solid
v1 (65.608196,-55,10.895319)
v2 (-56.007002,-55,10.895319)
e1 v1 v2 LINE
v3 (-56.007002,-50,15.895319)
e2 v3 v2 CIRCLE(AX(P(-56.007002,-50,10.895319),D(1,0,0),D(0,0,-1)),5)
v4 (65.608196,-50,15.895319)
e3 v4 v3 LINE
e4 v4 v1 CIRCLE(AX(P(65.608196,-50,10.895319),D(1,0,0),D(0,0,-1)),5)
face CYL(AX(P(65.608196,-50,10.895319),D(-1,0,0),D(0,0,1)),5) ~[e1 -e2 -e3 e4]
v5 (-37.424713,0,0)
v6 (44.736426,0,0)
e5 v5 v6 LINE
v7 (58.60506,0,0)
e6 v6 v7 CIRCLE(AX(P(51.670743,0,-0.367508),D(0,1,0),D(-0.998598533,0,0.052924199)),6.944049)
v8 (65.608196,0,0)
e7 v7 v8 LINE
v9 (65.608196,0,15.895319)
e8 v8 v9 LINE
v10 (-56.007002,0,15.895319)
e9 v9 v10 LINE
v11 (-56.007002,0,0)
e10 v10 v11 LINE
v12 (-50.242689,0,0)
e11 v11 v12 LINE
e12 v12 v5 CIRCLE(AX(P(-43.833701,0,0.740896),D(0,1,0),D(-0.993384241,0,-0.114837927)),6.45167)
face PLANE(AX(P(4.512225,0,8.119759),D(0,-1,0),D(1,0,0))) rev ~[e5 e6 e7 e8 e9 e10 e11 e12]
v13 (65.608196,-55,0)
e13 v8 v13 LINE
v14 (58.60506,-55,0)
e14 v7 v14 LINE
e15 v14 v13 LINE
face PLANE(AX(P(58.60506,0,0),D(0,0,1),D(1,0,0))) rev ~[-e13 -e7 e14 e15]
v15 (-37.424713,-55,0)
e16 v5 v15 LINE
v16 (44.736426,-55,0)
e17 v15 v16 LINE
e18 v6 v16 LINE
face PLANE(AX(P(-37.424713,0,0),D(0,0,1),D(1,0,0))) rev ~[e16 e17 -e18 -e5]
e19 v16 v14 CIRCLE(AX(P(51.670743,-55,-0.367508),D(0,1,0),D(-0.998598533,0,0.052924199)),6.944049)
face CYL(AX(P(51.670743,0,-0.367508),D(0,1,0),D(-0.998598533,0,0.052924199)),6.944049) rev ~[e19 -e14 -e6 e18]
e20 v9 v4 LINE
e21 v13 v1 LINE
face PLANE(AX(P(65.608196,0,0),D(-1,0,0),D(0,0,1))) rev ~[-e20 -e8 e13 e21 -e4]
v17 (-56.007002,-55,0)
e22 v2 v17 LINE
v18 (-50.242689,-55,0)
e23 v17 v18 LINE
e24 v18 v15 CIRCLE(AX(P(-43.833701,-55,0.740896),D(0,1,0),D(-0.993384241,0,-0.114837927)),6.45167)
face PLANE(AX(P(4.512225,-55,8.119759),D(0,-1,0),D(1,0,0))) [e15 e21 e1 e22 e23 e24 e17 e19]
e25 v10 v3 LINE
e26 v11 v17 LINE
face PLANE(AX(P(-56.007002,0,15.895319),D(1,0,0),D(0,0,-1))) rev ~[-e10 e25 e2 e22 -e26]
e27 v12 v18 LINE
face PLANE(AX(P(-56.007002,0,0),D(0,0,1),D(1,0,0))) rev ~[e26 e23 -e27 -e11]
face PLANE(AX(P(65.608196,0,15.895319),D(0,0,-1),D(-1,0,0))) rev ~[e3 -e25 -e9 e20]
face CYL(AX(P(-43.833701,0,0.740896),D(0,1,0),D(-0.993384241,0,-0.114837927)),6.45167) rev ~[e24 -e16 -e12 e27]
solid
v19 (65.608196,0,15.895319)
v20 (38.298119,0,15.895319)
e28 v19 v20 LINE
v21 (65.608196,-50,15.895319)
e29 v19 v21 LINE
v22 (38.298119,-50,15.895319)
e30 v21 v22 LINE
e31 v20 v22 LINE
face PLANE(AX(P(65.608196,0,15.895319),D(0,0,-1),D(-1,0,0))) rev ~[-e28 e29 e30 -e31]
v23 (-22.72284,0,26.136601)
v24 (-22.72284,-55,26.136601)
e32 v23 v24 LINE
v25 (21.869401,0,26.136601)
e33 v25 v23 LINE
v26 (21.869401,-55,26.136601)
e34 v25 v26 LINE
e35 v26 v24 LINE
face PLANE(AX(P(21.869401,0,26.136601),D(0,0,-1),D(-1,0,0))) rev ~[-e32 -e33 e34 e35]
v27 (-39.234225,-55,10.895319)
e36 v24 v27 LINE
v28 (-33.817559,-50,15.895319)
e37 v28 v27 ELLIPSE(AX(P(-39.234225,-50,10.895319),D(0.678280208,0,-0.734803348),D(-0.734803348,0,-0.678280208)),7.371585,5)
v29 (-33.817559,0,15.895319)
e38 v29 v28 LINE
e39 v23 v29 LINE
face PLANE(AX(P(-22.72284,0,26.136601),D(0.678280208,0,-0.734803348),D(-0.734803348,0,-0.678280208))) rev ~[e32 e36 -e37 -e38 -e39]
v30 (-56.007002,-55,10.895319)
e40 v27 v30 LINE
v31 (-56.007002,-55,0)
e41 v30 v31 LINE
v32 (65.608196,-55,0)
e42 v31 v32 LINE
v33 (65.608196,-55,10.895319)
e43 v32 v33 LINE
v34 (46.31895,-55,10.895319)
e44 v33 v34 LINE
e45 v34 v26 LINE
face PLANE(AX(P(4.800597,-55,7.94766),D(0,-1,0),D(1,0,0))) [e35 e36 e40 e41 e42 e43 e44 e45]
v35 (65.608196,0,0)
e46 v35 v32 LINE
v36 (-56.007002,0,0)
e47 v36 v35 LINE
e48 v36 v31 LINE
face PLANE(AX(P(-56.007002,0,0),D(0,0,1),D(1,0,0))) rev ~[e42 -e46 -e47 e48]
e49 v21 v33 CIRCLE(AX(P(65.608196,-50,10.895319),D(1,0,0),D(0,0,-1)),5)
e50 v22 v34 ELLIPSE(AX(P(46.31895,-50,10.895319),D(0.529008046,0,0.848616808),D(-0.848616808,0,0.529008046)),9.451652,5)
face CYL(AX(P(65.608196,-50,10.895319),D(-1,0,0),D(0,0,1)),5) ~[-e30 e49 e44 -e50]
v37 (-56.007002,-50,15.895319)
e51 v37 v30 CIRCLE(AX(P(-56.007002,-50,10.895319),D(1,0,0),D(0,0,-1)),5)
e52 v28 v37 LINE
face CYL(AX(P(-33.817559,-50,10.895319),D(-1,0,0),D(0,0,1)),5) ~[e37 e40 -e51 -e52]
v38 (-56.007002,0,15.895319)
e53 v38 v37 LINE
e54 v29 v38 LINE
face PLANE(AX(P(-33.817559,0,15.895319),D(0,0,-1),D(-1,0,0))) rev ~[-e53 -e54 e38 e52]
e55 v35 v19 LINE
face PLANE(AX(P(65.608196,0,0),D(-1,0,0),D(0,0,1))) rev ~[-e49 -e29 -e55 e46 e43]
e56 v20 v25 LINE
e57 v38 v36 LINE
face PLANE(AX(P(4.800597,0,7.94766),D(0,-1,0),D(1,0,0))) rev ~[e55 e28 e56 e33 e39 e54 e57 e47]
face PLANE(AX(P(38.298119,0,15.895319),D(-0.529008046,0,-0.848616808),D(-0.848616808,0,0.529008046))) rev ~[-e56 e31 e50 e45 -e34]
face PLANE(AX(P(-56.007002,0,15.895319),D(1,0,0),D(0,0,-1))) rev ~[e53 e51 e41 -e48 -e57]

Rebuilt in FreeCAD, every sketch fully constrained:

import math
import FreeCAD as App
import Part
import Sketcher


def edges_at(feature, points):
    """Names of the edges that pass closest to the given points."""
    edges = feature.Shape.Edges
    near = lambda p: min(range(len(edges)), key=lambda i: edges[i].distToShape(Part.Vertex(*p))[0])
    return sorted({f"Edge{near(p) + 1}" for p in points})

doc = App.newDocument("Part")
body = doc.addObject("PartDesign::Body", "Body")

# Sketch on XZ plane
sketch1 = body.newObject("Sketcher::SketchObject", "Sketch")
sketch1.AttachmentSupport = (doc.getObject("XZ_Plane"), [""])
sketch1.MapMode = "FlatFace"
sketch1.addGeometry(Part.ArcOfCircle(Part.Circle(App.Vector(51.670743, -0.367508, 0), App.Vector(0, 0, 1), 6.944049), math.radians(3.033751), math.radians(176.966249)), False)
sketch1.addGeometry(Part.LineSegment(App.Vector(58.60506, 0, 0), App.Vector(65.608196, 0, 0)), False)
sketch1.addGeometry(Part.LineSegment(App.Vector(65.608196, 0, 0), App.Vector(65.608196, 15.895319, 0)), False)
sketch1.addGeometry(Part.LineSegment(App.Vector(65.608196, 15.895319, 0), App.Vector(-56.007002, 15.895319, 0)), False)
sketch1.addGeometry(Part.LineSegment(App.Vector(-56.007002, 15.895319, 0), App.Vector(-56.007002, 0, 0)), False)
sketch1.addGeometry(Part.LineSegment(App.Vector(-56.007002, 0, 0), App.Vector(-50.242689, 0, 0)), False)
sketch1.addGeometry(Part.ArcOfCircle(Part.Circle(App.Vector(-43.833701, 0.740896, 0), App.Vector(0, 0, 1), 6.45167), math.radians(-6.594277), math.radians(186.594277)), False)
sketch1.addGeometry(Part.LineSegment(App.Vector(-37.424713, 0, 0), App.Vector(44.736426, 0, 0)), False)
sketch1.addConstraint(Sketcher.Constraint("Coincident", 0, 1, 1, 1))
sketch1.addConstraint(Sketcher.Constraint("Coincident", 1, 2, 2, 1))
sketch1.addConstraint(Sketcher.Constraint("Coincident", 2, 2, 3, 1))
sketch1.addConstraint(Sketcher.Constraint("Coincident", 3, 2, 4, 1))
sketch1.addConstraint(Sketcher.Constraint("Coincident", 4, 2, 5, 1))
sketch1.addConstraint(Sketcher.Constraint("Coincident", 5, 2, 6, 2))
sketch1.addConstraint(Sketcher.Constraint("Coincident", 6, 1, 7, 1))
sketch1.addConstraint(Sketcher.Constraint("Coincident", 7, 2, 0, 2))
sketch1.addConstraint(Sketcher.Constraint("Horizontal", 1))
sketch1.addConstraint(Sketcher.Constraint("Vertical", 2))
sketch1.addConstraint(Sketcher.Constraint("Horizontal", 3))
sketch1.addConstraint(Sketcher.Constraint("Vertical", 4))
sketch1.addConstraint(Sketcher.Constraint("Horizontal", 5))
sketch1.addConstraint(Sketcher.Constraint("Horizontal", 7))
sketch1.addConstraint(Sketcher.Constraint("PointOnObject", 0, 1, -1))
sketch1.addConstraint(Sketcher.Constraint("PointOnObject", 4, 2, -1))
sketch1.addConstraint(Sketcher.Constraint("PointOnObject", 6, 1, -1))
sketch1.addConstraint(Sketcher.Constraint("Radius", 0, 6.944049))
sketch1.addConstraint(Sketcher.Constraint("Radius", 6, 6.45167))
sketch1.addConstraint(Sketcher.Constraint("DistanceX", 3, 2, -1, 1, 56.007002))
sketch1.addConstraint(Sketcher.Constraint("DistanceX", 7, 1, 7, 2, 82.16114))
sketch1.addConstraint(Sketcher.Constraint("DistanceY", 2, 1, 2, 2, 15.895319))
sketch1.addConstraint(Sketcher.Constraint("DistanceX", 6, 3, -1, 1, 43.833701))
sketch1.addConstraint(Sketcher.Constraint("DistanceX", 1, 1, 1, 2, 7.003136))
sketch1.addConstraint(Sketcher.Constraint("DistanceX", 3, 2, 3, 1, 121.615198))
sketch1.addConstraint(Sketcher.Constraint("DistanceX", 5, 1, 5, 2, 5.764313))
pad1 = body.newObject("PartDesign::Pad", "Pad")
pad1.Profile = sketch1
pad1.Length = 55
doc.recompute()

fillet = body.newObject("PartDesign::Fillet", "Fillet")
fillet.Base = (pad1, edges_at(pad1, [(4.801, -55, 15.895)]))
fillet.Radius = 5
body2 = doc.addObject("PartDesign::Body", "Body001")

# Sketch on XZ plane
sketch2 = body2.newObject("Sketcher::SketchObject", "Sketch001")
sketch2.AttachmentSupport = (doc.getObject("XZ_Plane001"), [""])
sketch2.MapMode = "FlatFace"
sketch2.addGeometry(Part.LineSegment(App.Vector(-56, 16, 0), App.Vector(-56, 0, 0)), False)
sketch2.addGeometry(Part.LineSegment(App.Vector(-56, 0, 0), App.Vector(66, 0, 0)), False)
sketch2.addGeometry(Part.LineSegment(App.Vector(66, 0, 0), App.Vector(66, 16, 0)), False)
sketch2.addGeometry(Part.LineSegment(App.Vector(66, 16, 0), App.Vector(38, 16, 0)), False)
sketch2.addGeometry(Part.LineSegment(App.Vector(38, 16, 0), App.Vector(22, 26, 0)), False)
sketch2.addGeometry(Part.LineSegment(App.Vector(22, 26, 0), App.Vector(-23, 26, 0)), False)
sketch2.addGeometry(Part.LineSegment(App.Vector(-23, 26, 0), App.Vector(-34, 16, 0)), False)
sketch2.addGeometry(Part.LineSegment(App.Vector(-34, 16, 0), App.Vector(-56, 16, 0)), False)
sketch2.addConstraint(Sketcher.Constraint("Coincident", 0, 2, 1, 1))
sketch2.addConstraint(Sketcher.Constraint("Coincident", 1, 2, 2, 1))
sketch2.addConstraint(Sketcher.Constraint("Coincident", 2, 2, 3, 1))
sketch2.addConstraint(Sketcher.Constraint("Coincident", 3, 2, 4, 1))
sketch2.addConstraint(Sketcher.Constraint("Coincident", 4, 2, 5, 1))
sketch2.addConstraint(Sketcher.Constraint("Coincident", 5, 2, 6, 1))
sketch2.addConstraint(Sketcher.Constraint("Coincident", 6, 2, 7, 1))
sketch2.addConstraint(Sketcher.Constraint("Coincident", 7, 2, 0, 1))
sketch2.addConstraint(Sketcher.Constraint("Vertical", 0))
sketch2.addConstraint(Sketcher.Constraint("Horizontal", 1))
sketch2.addConstraint(Sketcher.Constraint("Vertical", 2))
sketch2.addConstraint(Sketcher.Constraint("Horizontal", 3))
sketch2.addConstraint(Sketcher.Constraint("Horizontal", 5))
sketch2.addConstraint(Sketcher.Constraint("Horizontal", 7))
sketch2.addConstraint(Sketcher.Constraint("PointOnObject", 0, 2, -1))
sketch2.addConstraint(Sketcher.Constraint("Horizontal", 3, 2, 6, 2))
sketch2.addConstraint(Sketcher.Constraint("DistanceX", 0, 2, -1, 1, 56.007002))
sketch2.addConstraint(Sketcher.Constraint("DistanceX", 5, 2, 5, 1, 44.592241))
sketch2.addConstraint(Sketcher.Constraint("DistanceY", 0, 2, 0, 1, 15.895319))
sketch2.addConstraint(Sketcher.Constraint("DistanceX", -1, 1, 4, 2, 21.869401))
sketch2.addConstraint(Sketcher.Constraint("DistanceY", -1, 1, 4, 2, 26.136601))
sketch2.addConstraint(Sketcher.Constraint("DistanceX", 1, 1, 1, 2, 121.615198))
sketch2.addConstraint(Sketcher.Constraint("DistanceX", 3, 2, 3, 1, 27.310077))
sketch2.addConstraint(Sketcher.Constraint("DistanceX", 7, 2, 7, 1, 22.189442))
pad2 = body2.newObject("PartDesign::Pad", "Pad001")
pad2.Profile = sketch2
pad2.Length = 55
doc.recompute()

fillet2 = body2.newObject("PartDesign::Fillet", "Fillet001")
fillet2.Base = (pad2, edges_at(pad2, [(51.953, -55, 15.895)]))
fillet2.Radius = 5
doc.recompute()

fillet3 = body2.newObject("PartDesign::Fillet", "Fillet002")
fillet3.Base = (fillet2, edges_at(fillet2, [(-44.912, -55, 15.895)]))
fillet3.Radius = 5

doc.recompute()
